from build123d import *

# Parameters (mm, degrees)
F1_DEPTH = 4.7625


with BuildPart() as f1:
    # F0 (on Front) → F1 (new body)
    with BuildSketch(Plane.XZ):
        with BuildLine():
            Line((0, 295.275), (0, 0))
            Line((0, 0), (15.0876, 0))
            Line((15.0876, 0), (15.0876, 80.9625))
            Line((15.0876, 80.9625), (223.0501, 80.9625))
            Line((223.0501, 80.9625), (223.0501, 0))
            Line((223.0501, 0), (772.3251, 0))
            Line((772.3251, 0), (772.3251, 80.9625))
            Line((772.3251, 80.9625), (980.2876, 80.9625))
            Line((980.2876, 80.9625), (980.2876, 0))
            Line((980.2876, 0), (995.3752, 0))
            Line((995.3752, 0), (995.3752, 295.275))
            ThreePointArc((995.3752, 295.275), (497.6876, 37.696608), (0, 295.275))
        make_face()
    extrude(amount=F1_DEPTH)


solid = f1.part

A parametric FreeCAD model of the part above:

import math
import FreeCAD as App
import Part
import Sketcher
from FreeCAD import Vector
Q = App.Units.Quantity

doc = App.newDocument("Part")
body = doc.addObject("PartDesign::Body", "Body")

sketch1 = doc.addObject("Sketcher::SketchObject", "Sketch")
body.addObject(sketch1)
sketch1.AttachmentSupport = (doc.XZ_Plane, [""])
sketch1.MapMode = "FlatFace"
sketch1.addGeometry([
    Part.LineSegment(Vector(0, 295, 0), Vector(0, 0, 0)),
    Part.LineSegment(Vector(0, 0, 0), Vector(15, 0, 0)),
    Part.LineSegment(Vector(15, 0, 0), Vector(15, 81, 0)),
    Part.LineSegment(Vector(15, 81, 0), Vector(223, 81, 0)),
    Part.LineSegment(Vector(223, 81, 0), Vector(223, 0, 0)),
    Part.LineSegment(Vector(223, 0, 0), Vector(772, 0, 0)),
    Part.LineSegment(Vector(772, 0, 0), Vector(772, 81, 0)),
    Part.LineSegment(Vector(772, 81, 0), Vector(980, 81, 0)),
    Part.LineSegment(Vector(980, 81, 0), Vector(980, 0, 0)),
    Part.LineSegment(Vector(980, 0, 0), Vector(995, 0, 0)),
    Part.LineSegment(Vector(995, 0, 0), Vector(995, 295, 0)),
    Part.ArcOfCircle(Part.Circle(Vector(498, 647, 0), Vector(0, 0, 1), 610), math.radians(-145), math.radians(-35)),
], False)
sketch1.addConstraint([
    Sketcher.Constraint("Coincident", 0, 2, 1, 1),
    Sketcher.Constraint("Coincident", 1, 2, 2, 1),
    Sketcher.Constraint("Coincident", 2, 2, 3, 1),
    Sketcher.Constraint("Coincident", 3, 2, 4, 1),
    Sketcher.Constraint("Coincident", 4, 2, 5, 1),
    Sketcher.Constraint("Coincident", 5, 2, 6, 1),
    Sketcher.Constraint("Coincident", 6, 2, 7, 1),
    Sketcher.Constraint("Coincident", 7, 2, 8, 1),
    Sketcher.Constraint("Coincident", 8, 2, 9, 1),
    Sketcher.Constraint("Coincident", 9, 2, 10, 1),
    Sketcher.Constraint("Coincident", 10, 2, 11, 2),
    Sketcher.Constraint("Coincident", 11, 1, 0, 1),
    Sketcher.Constraint("Vertical", 0),
    Sketcher.Constraint("Horizontal", 1),
    Sketcher.Constraint("Vertical", 2),
    Sketcher.Constraint("Horizontal", 3),
    Sketcher.Constraint("Vertical", 4),
    Sketcher.Constraint("Horizontal", 5),
    Sketcher.Constraint("Vertical", 6),
    Sketcher.Constraint("Horizontal", 7),
    Sketcher.Constraint("Vertical", 8),
    Sketcher.Constraint("Horizontal", 9),
    Sketcher.Constraint("Vertical", 10),
    Sketcher.Constraint("Coincident", 0, 2, -1, 1),
    Sketcher.Constraint("PointOnObject", 4, 2, -1),
    Sketcher.Constraint("PointOnObject", 8, 2, -1),
    Sketcher.Constraint("Horizontal", 3, 2, 6, 2),
    Sketcher.Constraint("Horizontal", 10, 2, 11, 1),
    Sketcher.Constraint("Equal", 3, 7),
    Sketcher.Constraint("Equal", 1, 9),
    Sketcher.Constraint("Radius", 11, Q("24 in")),
    Sketcher.Constraint("DistanceX", 1, 2, 11, 3, Q("19 in")),
    Sketcher.Constraint("DistanceX", 1, 1, 1, 2, Q("0.594 in")),
    Sketcher.Constraint("DistanceX", 3, 1, 3, 2, Q("8.1875 in")),
    Sketcher.Constraint("DistanceY", 0, 2, 0, 1, Q("11.625 in")),
    Sketcher.Constraint("DistanceY", 2, 1, 2, 2, Q("3.1875 in")),
])
pad1 = doc.addObject("PartDesign::Pad", "Pad")
body.addObject(pad1)
pad1.Profile = sketch1
pad1.Length = Q("0.1875 in")

doc.recompute()
